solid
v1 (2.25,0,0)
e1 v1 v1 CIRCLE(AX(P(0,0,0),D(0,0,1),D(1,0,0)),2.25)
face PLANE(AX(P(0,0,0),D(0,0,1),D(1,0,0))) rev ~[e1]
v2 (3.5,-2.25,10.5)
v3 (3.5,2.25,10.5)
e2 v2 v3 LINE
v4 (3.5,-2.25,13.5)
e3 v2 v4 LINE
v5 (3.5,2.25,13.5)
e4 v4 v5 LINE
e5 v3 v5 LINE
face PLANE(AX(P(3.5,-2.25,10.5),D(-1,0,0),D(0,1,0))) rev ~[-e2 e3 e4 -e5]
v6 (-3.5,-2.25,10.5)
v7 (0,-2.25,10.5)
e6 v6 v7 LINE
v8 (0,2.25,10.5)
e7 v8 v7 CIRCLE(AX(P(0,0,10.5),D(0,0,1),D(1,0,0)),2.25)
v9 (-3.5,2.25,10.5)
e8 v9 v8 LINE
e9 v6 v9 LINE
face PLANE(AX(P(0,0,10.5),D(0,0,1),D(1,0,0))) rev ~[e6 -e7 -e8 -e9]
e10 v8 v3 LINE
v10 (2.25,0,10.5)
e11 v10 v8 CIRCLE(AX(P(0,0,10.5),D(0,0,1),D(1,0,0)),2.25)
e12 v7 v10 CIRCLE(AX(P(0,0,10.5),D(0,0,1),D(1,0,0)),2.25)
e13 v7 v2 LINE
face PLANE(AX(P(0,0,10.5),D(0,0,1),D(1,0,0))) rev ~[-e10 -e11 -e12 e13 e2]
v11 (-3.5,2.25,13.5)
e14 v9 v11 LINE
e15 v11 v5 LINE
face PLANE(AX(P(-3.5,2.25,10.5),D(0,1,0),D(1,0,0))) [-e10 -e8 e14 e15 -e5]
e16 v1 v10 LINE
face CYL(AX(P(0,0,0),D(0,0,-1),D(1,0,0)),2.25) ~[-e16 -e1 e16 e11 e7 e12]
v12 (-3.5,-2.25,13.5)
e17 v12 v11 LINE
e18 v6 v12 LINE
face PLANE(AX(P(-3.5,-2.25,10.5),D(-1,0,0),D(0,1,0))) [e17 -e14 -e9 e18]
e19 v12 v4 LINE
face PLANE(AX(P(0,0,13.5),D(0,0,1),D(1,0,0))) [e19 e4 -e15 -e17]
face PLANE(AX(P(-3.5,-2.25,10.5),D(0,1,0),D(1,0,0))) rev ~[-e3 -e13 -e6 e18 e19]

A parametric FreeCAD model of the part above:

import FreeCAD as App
import Part
import Sketcher


def add_polygon(sketch, points):
    """Adds a closed chain of lines whose ends are joined by coincident constraints."""
    first, n = sketch.GeometryCount, len(points)
    for a, b in zip(points, points[1:] + points[:1]):
        sketch.addGeometry(Part.LineSegment(App.Vector(*a, 0), App.Vector(*b, 0)), False)
    for i in range(n):
        sketch.addConstraint(Sketcher.Constraint("Coincident", first + i, 2, first + (i + 1) % n, 1))

doc = App.newDocument("Part")
params = doc.addObject("Spreadsheet::Sheet", "Params")
for row, (alias, value) in enumerate([
    ("sketch1_diameter", "4.5 mm"),
    ("pad1_length", "10.5 mm"),
    ("sketch2_width", "7 mm"),
    ("sketch2_height", "4.5 mm"),
    ("pad2_length", "3 mm"),
], start=1):
    params.set(f"A{row}", alias)
    params.set(f"B{row}", "=" + value)
    params.setAlias(f"B{row}", alias)

body = doc.addObject("PartDesign::Body", "Body")

sketch1 = doc.addObject("Sketcher::SketchObject", "Sketch")
body.addObject(sketch1)
sketch1.AttachmentSupport = (doc.XY_Plane, [""])
sketch1.MapMode = "FlatFace"
sketch1.addGeometry(Part.Circle(App.Vector(0, 0, 0), App.Vector(0, 0, 1), 2.2), False)
sketch1.addConstraint([
    Sketcher.Constraint("Coincident", 0, 3, -1, 1),
    Sketcher.Constraint("Diameter", 0, 4.5),
])
sketch1.setExpression("Constraints[1]", "Params.sketch1_diameter")
pad1 = doc.addObject("PartDesign::Pad", "Pad")
body.addObject(pad1)
pad1.Profile = sketch1
pad1.setExpression("Length", "Params.pad1_length")

sketch2 = doc.addObject("Sketcher::SketchObject", "Sketch001")
body.addObject(sketch2)
sketch2.AttachmentSupport = (doc.XY_Plane, [""])
sketch2.MapMode = "FlatFace"
sketch2.AttachmentOffset = App.Placement(App.Vector(0, 0, 10.5), App.Rotation())
add_polygon(sketch2, [(-3.5, 2.2), (-3.5, -2.2), (3.5, -2.2), (3.5, 2.2)])
sketch2.addConstraint([
    Sketcher.Constraint("Vertical", 0),
    Sketcher.Constraint("Horizontal", 1),
    Sketcher.Constraint("Vertical", 2),
    Sketcher.Constraint("Horizontal", 3),
    Sketcher.Constraint("Symmetric", 0, 2, 2, 2, -1, 1),
    Sketcher.Constraint("DistanceX", 1, 1, 1, 2, 7.0),
    Sketcher.Constraint("DistanceY", 0, 2, 0, 1, 4.5),
])
sketch2.setExpression("Constraints[9]", "Params.sketch2_width")
sketch2.setExpression("Constraints[10]", "Params.sketch2_height")
pad2 = doc.addObject("PartDesign::Pad", "Pad001")
body.addObject(pad2)
pad2.Profile = sketch2
pad2.setExpression("Length", "Params.pad2_length")

doc.recompute()
